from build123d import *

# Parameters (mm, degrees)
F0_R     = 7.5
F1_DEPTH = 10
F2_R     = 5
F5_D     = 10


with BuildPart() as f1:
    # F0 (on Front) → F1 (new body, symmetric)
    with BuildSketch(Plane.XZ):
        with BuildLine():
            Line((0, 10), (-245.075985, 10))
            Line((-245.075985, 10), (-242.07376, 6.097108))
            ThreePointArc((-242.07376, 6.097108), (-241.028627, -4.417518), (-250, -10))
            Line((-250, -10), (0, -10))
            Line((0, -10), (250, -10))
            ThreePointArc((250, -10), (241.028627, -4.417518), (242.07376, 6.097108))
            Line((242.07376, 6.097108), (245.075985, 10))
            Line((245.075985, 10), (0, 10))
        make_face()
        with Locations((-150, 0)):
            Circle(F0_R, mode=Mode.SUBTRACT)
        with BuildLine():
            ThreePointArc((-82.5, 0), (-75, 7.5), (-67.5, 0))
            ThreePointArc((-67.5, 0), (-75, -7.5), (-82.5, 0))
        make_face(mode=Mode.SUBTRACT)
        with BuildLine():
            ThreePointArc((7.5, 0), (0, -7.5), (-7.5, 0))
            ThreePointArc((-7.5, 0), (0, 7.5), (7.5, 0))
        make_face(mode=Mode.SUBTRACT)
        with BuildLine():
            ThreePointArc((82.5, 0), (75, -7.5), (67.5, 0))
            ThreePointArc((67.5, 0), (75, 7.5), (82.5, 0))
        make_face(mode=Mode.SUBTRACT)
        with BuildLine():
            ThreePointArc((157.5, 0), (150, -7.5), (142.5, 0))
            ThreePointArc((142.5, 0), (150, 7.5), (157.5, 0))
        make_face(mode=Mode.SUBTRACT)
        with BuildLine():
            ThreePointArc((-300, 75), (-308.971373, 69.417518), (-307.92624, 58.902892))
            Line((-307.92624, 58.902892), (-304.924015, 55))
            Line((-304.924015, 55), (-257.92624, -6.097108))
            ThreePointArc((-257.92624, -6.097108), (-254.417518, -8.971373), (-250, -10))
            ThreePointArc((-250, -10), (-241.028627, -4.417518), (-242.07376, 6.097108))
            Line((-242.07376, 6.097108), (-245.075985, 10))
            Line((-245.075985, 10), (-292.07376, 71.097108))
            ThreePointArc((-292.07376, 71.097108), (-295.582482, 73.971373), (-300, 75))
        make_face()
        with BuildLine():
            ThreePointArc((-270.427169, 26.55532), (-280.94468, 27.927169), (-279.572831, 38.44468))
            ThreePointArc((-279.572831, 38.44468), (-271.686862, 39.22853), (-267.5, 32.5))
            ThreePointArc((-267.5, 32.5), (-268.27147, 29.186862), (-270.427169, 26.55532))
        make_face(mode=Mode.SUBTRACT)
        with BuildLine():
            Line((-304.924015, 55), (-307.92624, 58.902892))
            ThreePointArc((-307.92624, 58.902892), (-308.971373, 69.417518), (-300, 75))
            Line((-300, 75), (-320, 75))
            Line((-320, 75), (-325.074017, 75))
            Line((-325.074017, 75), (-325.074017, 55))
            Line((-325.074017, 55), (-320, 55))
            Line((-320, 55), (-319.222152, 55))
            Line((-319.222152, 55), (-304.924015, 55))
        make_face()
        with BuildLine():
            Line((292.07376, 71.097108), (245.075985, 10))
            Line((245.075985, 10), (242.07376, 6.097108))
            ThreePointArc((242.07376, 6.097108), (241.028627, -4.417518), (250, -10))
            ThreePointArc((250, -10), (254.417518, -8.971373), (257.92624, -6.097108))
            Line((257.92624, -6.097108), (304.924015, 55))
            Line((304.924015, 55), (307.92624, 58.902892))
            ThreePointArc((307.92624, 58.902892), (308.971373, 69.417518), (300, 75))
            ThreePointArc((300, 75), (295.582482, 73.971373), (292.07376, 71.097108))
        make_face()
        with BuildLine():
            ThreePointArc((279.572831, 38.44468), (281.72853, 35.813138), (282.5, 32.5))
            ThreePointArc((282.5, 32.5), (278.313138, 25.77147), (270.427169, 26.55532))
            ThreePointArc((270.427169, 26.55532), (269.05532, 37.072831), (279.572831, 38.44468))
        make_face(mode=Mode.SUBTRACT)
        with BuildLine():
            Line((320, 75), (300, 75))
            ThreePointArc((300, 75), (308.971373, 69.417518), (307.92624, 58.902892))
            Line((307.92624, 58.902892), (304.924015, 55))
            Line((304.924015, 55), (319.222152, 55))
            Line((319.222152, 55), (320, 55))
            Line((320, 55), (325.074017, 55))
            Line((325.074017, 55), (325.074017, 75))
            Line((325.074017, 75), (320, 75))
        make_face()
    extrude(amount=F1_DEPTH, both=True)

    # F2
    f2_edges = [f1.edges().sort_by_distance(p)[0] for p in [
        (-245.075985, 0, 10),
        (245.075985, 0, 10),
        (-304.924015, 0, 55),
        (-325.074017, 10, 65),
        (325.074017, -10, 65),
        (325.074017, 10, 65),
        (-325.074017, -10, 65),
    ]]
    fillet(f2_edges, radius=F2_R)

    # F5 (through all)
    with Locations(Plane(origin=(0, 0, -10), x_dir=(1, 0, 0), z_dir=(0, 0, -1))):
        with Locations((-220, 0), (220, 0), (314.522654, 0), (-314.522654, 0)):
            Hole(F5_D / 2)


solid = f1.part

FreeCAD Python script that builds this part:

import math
import FreeCAD as App
import Part
import Sketcher

V = App.Vector
Q = App.Units.Quantity


def edges_at(feature, points):
    """Names of the edges that pass closest to the given points."""
    edges = feature.Shape.Edges
    near = lambda p: min(range(len(edges)), key=lambda i: edges[i].distToShape(Part.Vertex(*p))[0])
    return sorted({f"Edge{near(p) + 1}" for p in points})

doc = App.newDocument("Part")
body = doc.addObject("PartDesign::Body", "Body")

# Sketch on XZ plane
sketch1 = body.newObject("Sketcher::SketchObject", "Sketch")
sketch1.AttachmentSupport = (doc.getObject("XZ_Plane"), [""])
sketch1.MapMode = "FlatFace"
sketch1.addGeometry([
    Part.LineSegment(V(245, 10, 0), V(-245, 10, 0)),  # 0
    Part.LineSegment(V(-245, 10, 0), V(-292, 71, 0)),  # 1
    Part.ArcOfCircle(Part.Circle(V(-300, 65, 0), V(0, 0, 1), 10), math.radians(38), math.radians(90)),  # 2
    Part.LineSegment(V(-300, 75, 0), V(-325, 75, 0)),  # 3
    Part.LineSegment(V(-325, 75, 0), V(-325, 55, 0)),  # 4
    Part.LineSegment(V(-325, 55, 0), V(-305, 55, 0)),  # 5
    Part.LineSegment(V(-305, 55, 0), V(-258, -6, 0)),  # 6
    Part.ArcOfCircle(Part.Circle(V(-250, 0, 0), V(0, 0, 1), 10), math.radians(-142), math.radians(-90)),  # 7
    Part.LineSegment(V(-250, -10, 0), V(250, -10, 0)),  # 8
    Part.ArcOfCircle(Part.Circle(V(250, 0, 0), V(0, 0, 1), 10), math.radians(-90), math.radians(-38)),  # 9
    Part.LineSegment(V(258, -6, 0), V(305, 55, 0)),  # 10
    Part.LineSegment(V(305, 55, 0), V(325, 55, 0)),  # 11
    Part.LineSegment(V(325, 55, 0), V(325, 75, 0)),  # 12
    Part.LineSegment(V(325, 75, 0), V(300, 75, 0)),  # 13
    Part.ArcOfCircle(Part.Circle(V(300, 65, 0), V(0, 0, 1), 10), math.radians(90), math.radians(142)),  # 14
    Part.LineSegment(V(292, 71, 0), V(245, 10, 0)),  # 15
    Part.Circle(V(-150, 0, 0), V(0, 0, 1), 8),  # 16
    Part.Circle(V(-75, 0, 0), V(0, 0, 1), 8),  # 17
    Part.Circle(V(0, 0, 0), V(0, 0, 1), 8),  # 18
    Part.Circle(V(75, 0, 0), V(0, 0, 1), 8),  # 19
    Part.Circle(V(150, 0, 0), V(0, 0, 1), 8),  # 20
    Part.ArcOfCircle(Part.Circle(V(-275, 33, 0), V(0, 0, 1), 8), math.radians(-52), math.radians(0)),  # 21
    Part.ArcOfCircle(Part.Circle(V(-275, 32, 0), V(0, 0, 1), 8), math.radians(128), math.radians(308)),  # 22
    Part.ArcOfCircle(Part.Circle(V(-275, 32, 0), V(0, 0, 1), 8), math.radians(0), math.radians(128)),  # 23
    Part.ArcOfCircle(Part.Circle(V(275, 32, 0), V(0, 0, 1), 8), math.radians(52), math.radians(232)),  # 24
    Part.ArcOfCircle(Part.Circle(V(275, 32, 0), V(0, 0, 1), 8), math.radians(0), math.radians(52)),  # 25
    Part.ArcOfCircle(Part.Circle(V(275, 33, 0), V(0, 0, 1), 8), math.radians(-128), math.radians(0)),  # 26
], False)
sketch1.addConstraint([
    Sketcher.Constraint("Coincident", 0, 2, 1, 1),
    Sketcher.Constraint("Tangent", 1, 2, 2, 1),
    Sketcher.Constraint("Tangent", 2, 2, 3, 1),
    Sketcher.Constraint("Coincident", 3, 2, 4, 1),
    Sketcher.Constraint("Coincident", 4, 2, 5, 1),
    Sketcher.Constraint("Coincident", 5, 2, 6, 1),
    Sketcher.Constraint("Tangent", 6, 2, 7, 1),
    Sketcher.Constraint("Tangent", 7, 2, 8, 1),
    Sketcher.Constraint("Tangent", 8, 2, 9, 1),
    Sketcher.Constraint("Tangent", 9, 2, 10, 1),
    Sketcher.Constraint("Coincident", 10, 2, 11, 1),
    Sketcher.Constraint("Coincident", 11, 2, 12, 1),
    Sketcher.Constraint("Coincident", 12, 2, 13, 1),
    Sketcher.Constraint("Tangent", 13, 2, 14, 1),
    Sketcher.Constraint("Tangent", 14, 2, 15, 1),
    Sketcher.Constraint("Coincident", 15, 2, 0, 1),
    Sketcher.Constraint("Tangent", 21, 1, 22, 2),
    Sketcher.Constraint("Tangent", 22, 1, 23, 2),
    Sketcher.Constraint("Tangent", 23, 1, 21, 2),
    Sketcher.Constraint("Tangent", 24, 1, 25, 2),
    Sketcher.Constraint("Tangent", 25, 1, 26, 2),
    Sketcher.Constraint("Tangent", 26, 1, 24, 2),
    Sketcher.Constraint("Horizontal", 0),
    Sketcher.Constraint("Horizontal", 3),
    Sketcher.Constraint("Vertical", 4),
    Sketcher.Constraint("Horizontal", 5),
    Sketcher.Constraint("Horizontal", 8),
    Sketcher.Constraint("Horizontal", 11),
    Sketcher.Constraint("Vertical", 12),
    Sketcher.Constraint("Horizontal", 13),
    Sketcher.Constraint("Coincident", 18, 3, -1, 1),
    Sketcher.Constraint("Equal", 2, 7),
    Sketcher.Constraint("Equal", 7, 9),
    Sketcher.Constraint("Equal", 9, 14),
    Sketcher.Constraint("Equal", 16, 17),
    Sketcher.Constraint("Equal", 17, 18),
    Sketcher.Constraint("Equal", 18, 19),
    Sketcher.Constraint("Equal", 19, 20),
    Sketcher.Constraint("Equal", 20, 21),
    Sketcher.Constraint("Equal", 23, 24),
    Sketcher.Constraint("Symmetric", 7, 3, 9, 3, -1, 1),
    Sketcher.Constraint("Symmetric", 17, 3, 19, 3, -1, 1),
    Sketcher.Constraint("Symmetric", 16, 3, 20, 3, -1, 1),
    Sketcher.Constraint("Symmetric", 2, 3, 14, 3, -2),
    Sketcher.Constraint("Symmetric", 21, 3, 24, 3, -2),
    Sketcher.Constraint("Symmetric", 5, 2, 10, 2, -2),
    Sketcher.Constraint("PointOnObject", 16, 3, -1),
    Sketcher.Constraint("PointOnObject", 17, 3, -1),
    Sketcher.Constraint("Parallel", 1, 6),
    Sketcher.Constraint("Parallel", 10, 15),
    Sketcher.Constraint("Horizontal", 26, 3, 23, 1),
    Sketcher.Constraint("Horizontal", 22, 1, 24, 1),
    Sketcher.Constraint("Horizontal", 23, 1, 25, 1),
    Sketcher.Constraint("Horizontal", 21, 1, 26, 1),
    Sketcher.Constraint("Equal", 5, 11),
    Sketcher.Constraint("Equal", 1, 6),
    Sketcher.Constraint("Diameter", 16, Q("15 mm")),
    Sketcher.Constraint("DistanceX", 8, 1, 8, 2, Q("500 mm")),
    Sketcher.Constraint("DistanceY", 4, 2, 4, 1, Q("20 mm")),
    Sketcher.Constraint("DistanceX", 2, 3, -1, 1, Q("300.000001 mm")),
    Sketcher.Constraint("DistanceX", 16, 3, -1, 1, Q("150 mm")),
    Sketcher.Constraint("DistanceX", 17, 3, -1, 1, Q("75 mm")),
    Sketcher.Constraint("DistanceX", 21, 3, -1, 1, Q("275.000002 mm")),
    Sketcher.Constraint("DistanceY", -1, 1, 0, 2, Q("10 mm")),
    Sketcher.Constraint("DistanceY", -1, 1, 2, 2, Q("75 mm")),
    Sketcher.Constraint("DistanceY", -1, 1, 21, 3, Q("32.5 mm")),
    Sketcher.Constraint("DistanceX", 0, 2, 0, 1, Q("490.15197 mm")),
    Sketcher.Constraint("DistanceX", 3, 2, 3, 1, Q("25.074017 mm")),
    Sketcher.Constraint("DistanceX", 21, 1, -1, 1, Q("270.427169 mm")),
    Sketcher.Constraint("DistanceX", 22, 1, -1, 1, Q("279.572831 mm")),
])
pad1 = body.newObject("PartDesign::Pad", "Pad")
pad1.Profile = sketch1
pad1.Length = 20
pad1.Midplane = True
doc.recompute()

fillet = body.newObject("PartDesign::Fillet", "Fillet")
fillet.Base = (pad1, edges_at(pad1, [
    (-245.076, 0, 10),
    (245.076, 0, 10),
    (-304.924, 0, 55),
    (-325.074, 10, 65),
    (325.074, -10, 65),
    (325.074, 10, 65),
    (-325.074, -10, 65),
]))
fillet.Radius = 5

# Sketch on XY plane
sketch2 = body.newObject("Sketcher::SketchObject", "Sketch001")
sketch2.AttachmentSupport = (doc.getObject("XY_Plane"), [""])
sketch2.MapMode = "FlatFace"
sketch2.AttachmentOffset = App.Placement(V(0, 0, -10), App.Rotation())
sketch2.addGeometry([
    Part.Circle(V(-220, 0, 0), V(0, 0, 1), 5),
    Part.Circle(V(220, 0, 0), V(0, 0, 1), 5),
    Part.Circle(V(315, 0, 0), V(0, 0, 1), 5),
    Part.Circle(V(-315, 0, 0), V(0, 0, 1), 5),
], False)
sketch2.addConstraint([
    Sketcher.Constraint("Equal", 0, 1),
    Sketcher.Constraint("Equal", 1, 2),
    Sketcher.Constraint("Equal", 2, 3),
    Sketcher.Constraint("Symmetric", 0, 3, 1, 3, -1, 1),
    Sketcher.Constraint("Symmetric", 2, 3, 3, 3, -1, 1),
    Sketcher.Constraint("PointOnObject", 0, 3, -1),
    Sketcher.Constraint("PointOnObject", 2, 3, -1),
    Sketcher.Constraint("Diameter", 0, Q("10 mm")),
    Sketcher.Constraint("DistanceX", 0, 3, -1, 1, Q("220 mm")),
    Sketcher.Constraint("DistanceX", 3, 3, 2, 3, Q("629.045308 mm")),
])
doc.recompute()
hole = body.newObject("PartDesign::Hole", "Hole")
hole.Profile = sketch2
hole.ThreadType = "None"
hole.Diameter = 10
hole.DepthType = "ThroughAll"
hole.Reversed = True

doc.recompute()
